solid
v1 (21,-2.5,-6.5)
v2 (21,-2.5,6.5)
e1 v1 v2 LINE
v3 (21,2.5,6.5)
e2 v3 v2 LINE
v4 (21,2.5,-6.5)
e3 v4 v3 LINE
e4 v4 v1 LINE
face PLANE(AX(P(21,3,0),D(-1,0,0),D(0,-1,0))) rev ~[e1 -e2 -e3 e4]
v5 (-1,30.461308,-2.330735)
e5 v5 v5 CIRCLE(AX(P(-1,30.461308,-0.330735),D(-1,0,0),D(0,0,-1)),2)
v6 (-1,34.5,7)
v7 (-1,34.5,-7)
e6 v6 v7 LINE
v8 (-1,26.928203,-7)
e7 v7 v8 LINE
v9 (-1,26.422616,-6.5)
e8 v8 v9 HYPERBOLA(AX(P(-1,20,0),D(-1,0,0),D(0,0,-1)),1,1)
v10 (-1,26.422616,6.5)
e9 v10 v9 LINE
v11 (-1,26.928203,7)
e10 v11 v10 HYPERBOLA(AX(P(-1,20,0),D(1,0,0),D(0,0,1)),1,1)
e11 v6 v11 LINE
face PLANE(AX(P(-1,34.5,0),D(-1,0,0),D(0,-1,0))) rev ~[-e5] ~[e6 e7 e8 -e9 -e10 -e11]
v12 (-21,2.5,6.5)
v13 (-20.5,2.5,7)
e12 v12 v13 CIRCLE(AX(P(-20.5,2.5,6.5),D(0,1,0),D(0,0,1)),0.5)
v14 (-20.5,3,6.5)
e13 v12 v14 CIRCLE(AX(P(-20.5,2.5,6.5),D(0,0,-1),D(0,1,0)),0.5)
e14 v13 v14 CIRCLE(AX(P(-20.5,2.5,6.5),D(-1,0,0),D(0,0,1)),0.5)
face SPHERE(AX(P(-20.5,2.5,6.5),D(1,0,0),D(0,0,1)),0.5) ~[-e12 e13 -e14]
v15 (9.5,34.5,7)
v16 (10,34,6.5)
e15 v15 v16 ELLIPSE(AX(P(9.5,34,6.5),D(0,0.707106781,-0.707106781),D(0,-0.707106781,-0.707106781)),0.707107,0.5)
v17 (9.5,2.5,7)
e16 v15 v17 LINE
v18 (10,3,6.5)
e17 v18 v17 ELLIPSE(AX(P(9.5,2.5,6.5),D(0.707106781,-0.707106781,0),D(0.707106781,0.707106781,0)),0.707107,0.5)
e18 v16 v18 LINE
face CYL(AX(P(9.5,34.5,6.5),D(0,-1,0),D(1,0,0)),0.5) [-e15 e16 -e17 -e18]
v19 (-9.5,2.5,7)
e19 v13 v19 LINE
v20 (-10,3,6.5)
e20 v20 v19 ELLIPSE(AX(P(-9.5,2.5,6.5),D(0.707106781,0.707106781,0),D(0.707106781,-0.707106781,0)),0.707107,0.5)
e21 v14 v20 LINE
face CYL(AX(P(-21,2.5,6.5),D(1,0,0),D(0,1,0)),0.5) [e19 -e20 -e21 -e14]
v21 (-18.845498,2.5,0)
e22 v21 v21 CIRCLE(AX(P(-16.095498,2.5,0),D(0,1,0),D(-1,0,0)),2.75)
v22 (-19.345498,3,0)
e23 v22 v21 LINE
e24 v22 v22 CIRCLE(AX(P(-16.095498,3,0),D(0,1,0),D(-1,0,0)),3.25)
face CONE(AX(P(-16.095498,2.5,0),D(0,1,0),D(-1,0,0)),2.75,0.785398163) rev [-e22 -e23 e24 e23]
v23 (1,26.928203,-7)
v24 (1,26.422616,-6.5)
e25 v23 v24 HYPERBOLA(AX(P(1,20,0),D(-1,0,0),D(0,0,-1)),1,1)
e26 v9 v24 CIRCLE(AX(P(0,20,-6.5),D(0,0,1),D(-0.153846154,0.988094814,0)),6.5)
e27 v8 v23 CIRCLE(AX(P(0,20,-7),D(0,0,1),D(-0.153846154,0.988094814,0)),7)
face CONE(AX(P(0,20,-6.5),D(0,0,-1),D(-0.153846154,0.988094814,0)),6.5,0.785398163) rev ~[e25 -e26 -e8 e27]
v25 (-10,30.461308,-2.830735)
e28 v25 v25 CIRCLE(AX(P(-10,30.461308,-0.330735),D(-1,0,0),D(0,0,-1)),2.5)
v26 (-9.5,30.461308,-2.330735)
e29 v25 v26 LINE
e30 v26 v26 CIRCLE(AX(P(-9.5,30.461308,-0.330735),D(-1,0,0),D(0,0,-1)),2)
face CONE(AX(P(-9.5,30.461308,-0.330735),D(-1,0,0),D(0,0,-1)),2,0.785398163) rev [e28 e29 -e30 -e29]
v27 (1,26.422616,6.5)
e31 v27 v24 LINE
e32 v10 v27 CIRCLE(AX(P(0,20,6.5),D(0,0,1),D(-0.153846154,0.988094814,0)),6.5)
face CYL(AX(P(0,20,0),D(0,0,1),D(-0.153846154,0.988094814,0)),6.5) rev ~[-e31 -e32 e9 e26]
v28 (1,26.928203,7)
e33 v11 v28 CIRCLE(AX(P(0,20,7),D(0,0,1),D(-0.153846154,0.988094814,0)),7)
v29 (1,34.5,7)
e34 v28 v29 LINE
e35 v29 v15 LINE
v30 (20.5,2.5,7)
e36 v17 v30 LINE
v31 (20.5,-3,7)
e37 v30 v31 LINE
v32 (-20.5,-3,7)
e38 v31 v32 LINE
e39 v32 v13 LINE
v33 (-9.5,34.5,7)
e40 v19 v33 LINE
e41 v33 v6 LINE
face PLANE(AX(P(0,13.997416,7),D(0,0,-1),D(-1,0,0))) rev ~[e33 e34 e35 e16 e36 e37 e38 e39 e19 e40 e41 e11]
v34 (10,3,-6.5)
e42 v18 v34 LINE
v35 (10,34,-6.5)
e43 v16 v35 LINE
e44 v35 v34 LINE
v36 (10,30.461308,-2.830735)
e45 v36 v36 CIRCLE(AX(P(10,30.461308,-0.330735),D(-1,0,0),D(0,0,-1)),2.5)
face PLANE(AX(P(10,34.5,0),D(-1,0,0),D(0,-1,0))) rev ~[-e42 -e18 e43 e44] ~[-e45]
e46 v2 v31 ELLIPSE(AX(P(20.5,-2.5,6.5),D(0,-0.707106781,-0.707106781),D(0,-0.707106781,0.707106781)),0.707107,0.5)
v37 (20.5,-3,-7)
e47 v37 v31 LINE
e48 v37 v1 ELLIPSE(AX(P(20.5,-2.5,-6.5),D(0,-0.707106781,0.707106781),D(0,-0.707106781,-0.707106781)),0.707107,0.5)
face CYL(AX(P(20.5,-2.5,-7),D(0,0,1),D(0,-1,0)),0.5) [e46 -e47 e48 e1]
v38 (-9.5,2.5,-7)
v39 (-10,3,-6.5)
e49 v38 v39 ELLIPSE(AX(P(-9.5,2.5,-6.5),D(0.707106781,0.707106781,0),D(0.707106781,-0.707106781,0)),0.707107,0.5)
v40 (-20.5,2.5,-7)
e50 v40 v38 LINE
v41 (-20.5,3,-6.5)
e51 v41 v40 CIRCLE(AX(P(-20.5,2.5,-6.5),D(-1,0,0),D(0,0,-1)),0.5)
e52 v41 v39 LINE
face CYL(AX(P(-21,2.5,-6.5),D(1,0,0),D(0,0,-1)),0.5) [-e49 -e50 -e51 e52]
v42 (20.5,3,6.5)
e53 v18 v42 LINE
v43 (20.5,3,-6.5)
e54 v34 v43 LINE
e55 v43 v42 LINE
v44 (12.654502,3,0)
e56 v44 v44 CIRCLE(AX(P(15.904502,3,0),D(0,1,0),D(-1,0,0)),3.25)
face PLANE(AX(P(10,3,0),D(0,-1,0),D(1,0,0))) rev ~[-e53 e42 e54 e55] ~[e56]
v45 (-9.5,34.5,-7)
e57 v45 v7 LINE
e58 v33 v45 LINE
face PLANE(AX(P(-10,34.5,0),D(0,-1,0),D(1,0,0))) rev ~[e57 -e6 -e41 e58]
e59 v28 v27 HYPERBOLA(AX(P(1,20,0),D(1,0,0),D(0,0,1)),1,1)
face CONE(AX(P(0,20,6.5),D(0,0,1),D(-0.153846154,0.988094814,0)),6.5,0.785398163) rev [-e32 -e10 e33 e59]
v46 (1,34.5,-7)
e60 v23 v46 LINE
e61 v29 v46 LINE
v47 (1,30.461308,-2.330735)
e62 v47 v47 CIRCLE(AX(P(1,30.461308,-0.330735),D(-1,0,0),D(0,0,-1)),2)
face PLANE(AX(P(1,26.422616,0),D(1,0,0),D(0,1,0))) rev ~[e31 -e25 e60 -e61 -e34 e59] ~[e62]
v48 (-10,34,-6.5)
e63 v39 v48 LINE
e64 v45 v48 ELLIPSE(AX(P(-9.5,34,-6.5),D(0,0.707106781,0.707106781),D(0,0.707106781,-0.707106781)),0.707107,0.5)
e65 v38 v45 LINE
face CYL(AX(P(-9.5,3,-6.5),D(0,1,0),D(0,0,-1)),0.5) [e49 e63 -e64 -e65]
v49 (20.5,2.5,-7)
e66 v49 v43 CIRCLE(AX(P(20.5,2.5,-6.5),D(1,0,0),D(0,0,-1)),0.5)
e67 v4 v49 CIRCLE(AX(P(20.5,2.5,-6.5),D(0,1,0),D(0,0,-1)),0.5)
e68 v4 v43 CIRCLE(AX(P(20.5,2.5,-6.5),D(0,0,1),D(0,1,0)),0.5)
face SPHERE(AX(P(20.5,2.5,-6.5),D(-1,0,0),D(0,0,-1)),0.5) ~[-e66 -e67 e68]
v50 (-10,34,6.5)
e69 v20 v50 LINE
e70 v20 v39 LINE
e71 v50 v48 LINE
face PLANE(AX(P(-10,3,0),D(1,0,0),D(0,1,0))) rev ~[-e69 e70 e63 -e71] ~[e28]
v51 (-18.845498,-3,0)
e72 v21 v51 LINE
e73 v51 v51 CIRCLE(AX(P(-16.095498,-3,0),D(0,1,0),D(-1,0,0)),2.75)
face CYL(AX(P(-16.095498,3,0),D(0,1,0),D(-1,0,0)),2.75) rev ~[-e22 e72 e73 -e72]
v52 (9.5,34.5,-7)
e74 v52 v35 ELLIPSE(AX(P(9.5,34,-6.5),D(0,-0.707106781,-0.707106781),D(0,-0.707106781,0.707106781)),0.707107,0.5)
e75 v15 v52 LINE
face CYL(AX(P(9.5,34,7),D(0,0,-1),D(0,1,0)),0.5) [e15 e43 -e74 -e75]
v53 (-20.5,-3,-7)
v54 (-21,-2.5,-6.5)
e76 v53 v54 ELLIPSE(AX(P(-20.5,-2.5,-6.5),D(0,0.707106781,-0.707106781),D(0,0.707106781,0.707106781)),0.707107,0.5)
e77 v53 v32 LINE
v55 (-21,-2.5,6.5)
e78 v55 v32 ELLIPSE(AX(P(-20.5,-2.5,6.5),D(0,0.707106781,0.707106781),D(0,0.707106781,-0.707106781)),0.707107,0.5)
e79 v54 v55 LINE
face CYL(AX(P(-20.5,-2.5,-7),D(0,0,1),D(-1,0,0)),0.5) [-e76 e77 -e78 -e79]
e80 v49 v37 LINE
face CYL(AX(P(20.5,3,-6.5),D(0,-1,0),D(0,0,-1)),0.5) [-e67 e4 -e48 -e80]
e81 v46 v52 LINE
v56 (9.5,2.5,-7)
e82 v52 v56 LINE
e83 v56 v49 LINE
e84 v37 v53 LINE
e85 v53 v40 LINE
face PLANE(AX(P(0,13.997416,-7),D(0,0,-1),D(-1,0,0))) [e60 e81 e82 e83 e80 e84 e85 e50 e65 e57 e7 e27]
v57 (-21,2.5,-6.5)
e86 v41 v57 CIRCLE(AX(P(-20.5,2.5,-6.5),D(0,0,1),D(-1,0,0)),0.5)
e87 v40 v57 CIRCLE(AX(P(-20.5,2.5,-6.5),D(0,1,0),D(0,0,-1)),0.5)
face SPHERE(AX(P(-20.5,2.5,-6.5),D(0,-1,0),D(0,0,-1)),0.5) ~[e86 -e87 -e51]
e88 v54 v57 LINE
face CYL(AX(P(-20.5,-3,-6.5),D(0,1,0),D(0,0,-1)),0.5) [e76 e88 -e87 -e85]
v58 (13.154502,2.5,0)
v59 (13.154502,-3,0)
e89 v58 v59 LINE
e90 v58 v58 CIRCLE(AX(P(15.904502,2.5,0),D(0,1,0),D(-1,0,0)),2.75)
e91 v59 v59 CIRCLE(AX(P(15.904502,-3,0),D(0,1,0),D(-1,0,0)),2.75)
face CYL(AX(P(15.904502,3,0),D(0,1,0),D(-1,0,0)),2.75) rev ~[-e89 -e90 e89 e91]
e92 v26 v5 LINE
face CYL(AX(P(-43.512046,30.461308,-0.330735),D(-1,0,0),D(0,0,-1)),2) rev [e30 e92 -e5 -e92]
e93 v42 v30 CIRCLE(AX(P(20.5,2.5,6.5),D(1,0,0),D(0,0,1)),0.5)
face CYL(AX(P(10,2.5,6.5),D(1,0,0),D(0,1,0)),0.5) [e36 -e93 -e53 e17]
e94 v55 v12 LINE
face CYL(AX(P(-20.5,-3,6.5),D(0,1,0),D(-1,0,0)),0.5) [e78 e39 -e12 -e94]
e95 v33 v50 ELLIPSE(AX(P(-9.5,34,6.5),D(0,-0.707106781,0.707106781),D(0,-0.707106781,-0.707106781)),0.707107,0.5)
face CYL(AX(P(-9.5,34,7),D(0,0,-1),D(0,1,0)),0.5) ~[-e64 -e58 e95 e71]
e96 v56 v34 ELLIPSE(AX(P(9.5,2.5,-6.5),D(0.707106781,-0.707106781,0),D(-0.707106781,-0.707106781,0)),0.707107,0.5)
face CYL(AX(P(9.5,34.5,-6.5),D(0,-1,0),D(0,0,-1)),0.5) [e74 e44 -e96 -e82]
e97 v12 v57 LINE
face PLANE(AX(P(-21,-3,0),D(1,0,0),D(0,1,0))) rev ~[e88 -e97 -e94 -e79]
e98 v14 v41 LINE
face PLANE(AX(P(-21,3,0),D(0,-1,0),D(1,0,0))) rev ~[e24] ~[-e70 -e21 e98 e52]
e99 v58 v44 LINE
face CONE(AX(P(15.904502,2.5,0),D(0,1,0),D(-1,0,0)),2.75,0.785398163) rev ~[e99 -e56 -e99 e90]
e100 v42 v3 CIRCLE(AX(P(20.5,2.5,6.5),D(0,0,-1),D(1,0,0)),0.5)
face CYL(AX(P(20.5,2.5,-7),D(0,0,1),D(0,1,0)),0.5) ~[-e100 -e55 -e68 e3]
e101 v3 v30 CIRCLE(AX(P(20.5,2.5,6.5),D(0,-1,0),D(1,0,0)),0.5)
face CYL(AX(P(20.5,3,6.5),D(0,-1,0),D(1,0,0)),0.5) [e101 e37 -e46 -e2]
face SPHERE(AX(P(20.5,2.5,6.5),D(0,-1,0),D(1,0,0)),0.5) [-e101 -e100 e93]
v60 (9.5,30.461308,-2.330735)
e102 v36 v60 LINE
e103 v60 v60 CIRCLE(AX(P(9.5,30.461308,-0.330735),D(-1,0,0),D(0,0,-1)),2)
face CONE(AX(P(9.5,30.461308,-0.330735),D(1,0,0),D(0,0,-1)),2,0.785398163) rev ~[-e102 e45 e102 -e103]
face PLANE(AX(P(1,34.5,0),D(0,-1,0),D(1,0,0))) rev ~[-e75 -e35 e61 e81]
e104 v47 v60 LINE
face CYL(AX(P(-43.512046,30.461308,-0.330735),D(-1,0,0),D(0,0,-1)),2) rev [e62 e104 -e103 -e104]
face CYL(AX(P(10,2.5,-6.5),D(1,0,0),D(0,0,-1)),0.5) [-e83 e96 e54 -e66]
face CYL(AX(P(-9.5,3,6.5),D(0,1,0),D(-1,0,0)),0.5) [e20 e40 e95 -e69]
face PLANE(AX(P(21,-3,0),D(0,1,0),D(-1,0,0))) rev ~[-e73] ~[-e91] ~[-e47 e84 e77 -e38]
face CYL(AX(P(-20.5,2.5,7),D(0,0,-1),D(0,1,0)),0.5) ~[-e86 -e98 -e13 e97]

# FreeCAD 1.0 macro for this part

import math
import FreeCAD as App
import Part
import Sketcher
from FreeCAD import Vector


def edges_at(feature, points):
    """Names of the edges that pass closest to the given points."""
    edges = feature.Shape.Edges
    near = lambda p: min(range(len(edges)), key=lambda i: edges[i].distToShape(Part.Vertex(*p))[0])
    return sorted({f"Edge{near(p) + 1}" for p in points})

doc = App.newDocument("Part")
body = doc.addObject("PartDesign::Body", "Body")

sketch1 = body.newObject("Sketcher::SketchObject", "Sketch")
sketch1.AttachmentSupport = (doc.getObject("XY_Plane"), [""])
sketch1.MapMode = "FlatFace"
sketch1.addGeometry([
    Part.LineSegment(Vector(-21, 3, 0), Vector(-21, -3, 0)),
    Part.LineSegment(Vector(-21, -3, 0), Vector(21, -3, 0)),
    Part.LineSegment(Vector(21, -3, 0), Vector(21, 3, 0)),
    Part.LineSegment(Vector(21, 3, 0), Vector(10, 3, 0)),
    Part.LineSegment(Vector(10, 3, 0), Vector(10, 34.5, 0)),
    Part.LineSegment(Vector(10, 34.5, 0), Vector(1, 34.5, 0)),
    Part.LineSegment(Vector(1, 34.5, 0), Vector(1, 26.4, 0)),
    Part.ArcOfCircle(Part.Circle(Vector(0, 20, 0), Vector(0, 0, 1), 6.5), math.radians(99), math.radians(441)),
    Part.LineSegment(Vector(-1, 26.4, 0), Vector(-1, 34.5, 0)),
    Part.LineSegment(Vector(-1, 34.5, 0), Vector(-10, 34.5, 0)),
    Part.LineSegment(Vector(-10, 34.5, 0), Vector(-10, 3, 0)),
    Part.LineSegment(Vector(-10, 3, 0), Vector(-21, 3, 0)),
], False)
sketch1.addConstraint([
    Sketcher.Constraint("Coincident", 0, 2, 1, 1),
    Sketcher.Constraint("Coincident", 1, 2, 2, 1),
    Sketcher.Constraint("Coincident", 2, 2, 3, 1),
    Sketcher.Constraint("Coincident", 3, 2, 4, 1),
    Sketcher.Constraint("Coincident", 4, 2, 5, 1),
    Sketcher.Constraint("Coincident", 5, 2, 6, 1),
    Sketcher.Constraint("Coincident", 6, 2, 7, 2),
    Sketcher.Constraint("Coincident", 7, 1, 8, 1),
    Sketcher.Constraint("Coincident", 8, 2, 9, 1),
    Sketcher.Constraint("Coincident", 9, 2, 10, 1),
    Sketcher.Constraint("Coincident", 10, 2, 11, 1),
    Sketcher.Constraint("Coincident", 11, 2, 0, 1),
    Sketcher.Constraint("Vertical", 0),
    Sketcher.Constraint("Horizontal", 1),
    Sketcher.Constraint("Vertical", 2),
    Sketcher.Constraint("Horizontal", 3),
    Sketcher.Constraint("Vertical", 4),
    Sketcher.Constraint("Horizontal", 5),
    Sketcher.Constraint("Vertical", 6),
    Sketcher.Constraint("Vertical", 8),
    Sketcher.Constraint("Horizontal", 9),
    Sketcher.Constraint("Vertical", 10),
    Sketcher.Constraint("Horizontal", 11),
    Sketcher.Constraint("Symmetric", 0, 2, 2, 2, -1, 1),
    Sketcher.Constraint("Symmetric", 6, 2, 7, 1, -2),
    Sketcher.Constraint("Symmetric", 4, 2, 9, 2, -2),
    Sketcher.Constraint("Horizontal", 3, 2, 10, 2),
    Sketcher.Constraint("Radius", 7, 6.5),
    Sketcher.Constraint("DistanceX", 1, 1, 1, 2, 42.0),
    Sketcher.Constraint("DistanceX", 3, 2, 3, 1, 11.0),
    Sketcher.Constraint("DistanceX", 5, 2, 5, 1, 9.0),
    Sketcher.Constraint("DistanceY", 0, 2, 0, 1, 6.0),
    Sketcher.Constraint("DistanceY", 4, 1, 4, 2, 31.5),
    Sketcher.Constraint("DistanceY", -1, 1, 7, 3, 20.0),
])
pad1 = body.newObject("PartDesign::Pad", "Pad")
pad1.Profile = sketch1
pad1.Length = 14
pad1.Midplane = True

sketch2 = body.newObject("Sketcher::SketchObject", "Sketch001")
sketch2.AttachmentSupport = (doc.getObject("XZ_Plane"), [""])
sketch2.MapMode = "FlatFace"
sketch2.AttachmentOffset = App.Placement(Vector(0, 0, -3), App.Rotation())
sketch2.addGeometry([
    Part.Circle(Vector(15.9, 0, 0), Vector(0, 0, 1), 2.8),
    Part.Circle(Vector(-16.1, 0, 0), Vector(0, 0, 1), 2.8),
], False)
sketch2.addConstraint([
    Sketcher.Constraint("Equal", 0, 1),
    Sketcher.Constraint("PointOnObject", 0, 3, -1),
    Sketcher.Constraint("PointOnObject", 1, 3, -1),
    Sketcher.Constraint("Diameter", 0, 5.5),
    Sketcher.Constraint("DistanceX", 1, 3, 0, 3, 32.0),
    Sketcher.Constraint("DistanceX", -1, 1, 0, 3, 15.904502),
])
pocket1 = body.newObject("PartDesign::Pocket", "Pocket")
pocket1.Profile = sketch2
pocket1.Type = "ThroughAll"
pocket1.Reversed = True

sketch3 = body.newObject("Sketcher::SketchObject", "Sketch002")
sketch3.AttachmentSupport = (doc.getObject("YZ_Plane"), [""])
sketch3.MapMode = "FlatFace"
sketch3.AttachmentOffset = App.Placement(Vector(0, 0, -1), App.Rotation())
sketch3.addGeometry(Part.Circle(Vector(30.5, -0.3, 0), Vector(0, 0, 1), 2), False)
sketch3.addConstraint([
    Sketcher.Constraint("Diameter", 0, 4.0),
    Sketcher.Constraint("DistanceX", -1, 1, 0, 3, 30.461308),
    Sketcher.Constraint("DistanceY", 0, 3, -1, 1, 0.330735),
])
pocket2 = body.newObject("PartDesign::Pocket", "Pocket001")
pocket2.Profile = sketch3
pocket2.Type = "ThroughAll"
pocket2.Midplane = True
doc.recompute()

chamfer = body.newObject("PartDesign::Chamfer", "Chamfer")
chamfer.Base = (pocket2, edges_at(pocket2, [
    (0, 13.5, -7),
    (0, 13.5, 7),
    (18.655, 3, 0),
    (-13.345, 3, 0),
    (-10, 30.461, 1.669),
    (10, 30.461, 1.669),
]))
chamfer.Size = 0.5
doc.recompute()

fillet = body.newObject("PartDesign::Fillet", "Fillet")
fillet.Base = (chamfer, edges_at(chamfer, [
    (-15.5, 3, 7),
    (10, 18.75, -7),
    (15.5, 3, -7),
    (-21, 0, 7),
    (21, 0, -7),
    (-21, 0, -7),
    (-15.5, 3, -7),
    (-10, 18.75, -7),
    (21, 0, 7),
    (10, 34.5, 0),
    (21, 3, 0),
    (21, -3, 0),
    (-21, -3, 0),
    (-21, 3, 0),
    (-10, 34.5, 0),
    (15.5, 3, 7),
    (10, 18.75, 7),
    (-10, 18.75, 7),
]))
fillet.Radius = 0.5

doc.recompute()
